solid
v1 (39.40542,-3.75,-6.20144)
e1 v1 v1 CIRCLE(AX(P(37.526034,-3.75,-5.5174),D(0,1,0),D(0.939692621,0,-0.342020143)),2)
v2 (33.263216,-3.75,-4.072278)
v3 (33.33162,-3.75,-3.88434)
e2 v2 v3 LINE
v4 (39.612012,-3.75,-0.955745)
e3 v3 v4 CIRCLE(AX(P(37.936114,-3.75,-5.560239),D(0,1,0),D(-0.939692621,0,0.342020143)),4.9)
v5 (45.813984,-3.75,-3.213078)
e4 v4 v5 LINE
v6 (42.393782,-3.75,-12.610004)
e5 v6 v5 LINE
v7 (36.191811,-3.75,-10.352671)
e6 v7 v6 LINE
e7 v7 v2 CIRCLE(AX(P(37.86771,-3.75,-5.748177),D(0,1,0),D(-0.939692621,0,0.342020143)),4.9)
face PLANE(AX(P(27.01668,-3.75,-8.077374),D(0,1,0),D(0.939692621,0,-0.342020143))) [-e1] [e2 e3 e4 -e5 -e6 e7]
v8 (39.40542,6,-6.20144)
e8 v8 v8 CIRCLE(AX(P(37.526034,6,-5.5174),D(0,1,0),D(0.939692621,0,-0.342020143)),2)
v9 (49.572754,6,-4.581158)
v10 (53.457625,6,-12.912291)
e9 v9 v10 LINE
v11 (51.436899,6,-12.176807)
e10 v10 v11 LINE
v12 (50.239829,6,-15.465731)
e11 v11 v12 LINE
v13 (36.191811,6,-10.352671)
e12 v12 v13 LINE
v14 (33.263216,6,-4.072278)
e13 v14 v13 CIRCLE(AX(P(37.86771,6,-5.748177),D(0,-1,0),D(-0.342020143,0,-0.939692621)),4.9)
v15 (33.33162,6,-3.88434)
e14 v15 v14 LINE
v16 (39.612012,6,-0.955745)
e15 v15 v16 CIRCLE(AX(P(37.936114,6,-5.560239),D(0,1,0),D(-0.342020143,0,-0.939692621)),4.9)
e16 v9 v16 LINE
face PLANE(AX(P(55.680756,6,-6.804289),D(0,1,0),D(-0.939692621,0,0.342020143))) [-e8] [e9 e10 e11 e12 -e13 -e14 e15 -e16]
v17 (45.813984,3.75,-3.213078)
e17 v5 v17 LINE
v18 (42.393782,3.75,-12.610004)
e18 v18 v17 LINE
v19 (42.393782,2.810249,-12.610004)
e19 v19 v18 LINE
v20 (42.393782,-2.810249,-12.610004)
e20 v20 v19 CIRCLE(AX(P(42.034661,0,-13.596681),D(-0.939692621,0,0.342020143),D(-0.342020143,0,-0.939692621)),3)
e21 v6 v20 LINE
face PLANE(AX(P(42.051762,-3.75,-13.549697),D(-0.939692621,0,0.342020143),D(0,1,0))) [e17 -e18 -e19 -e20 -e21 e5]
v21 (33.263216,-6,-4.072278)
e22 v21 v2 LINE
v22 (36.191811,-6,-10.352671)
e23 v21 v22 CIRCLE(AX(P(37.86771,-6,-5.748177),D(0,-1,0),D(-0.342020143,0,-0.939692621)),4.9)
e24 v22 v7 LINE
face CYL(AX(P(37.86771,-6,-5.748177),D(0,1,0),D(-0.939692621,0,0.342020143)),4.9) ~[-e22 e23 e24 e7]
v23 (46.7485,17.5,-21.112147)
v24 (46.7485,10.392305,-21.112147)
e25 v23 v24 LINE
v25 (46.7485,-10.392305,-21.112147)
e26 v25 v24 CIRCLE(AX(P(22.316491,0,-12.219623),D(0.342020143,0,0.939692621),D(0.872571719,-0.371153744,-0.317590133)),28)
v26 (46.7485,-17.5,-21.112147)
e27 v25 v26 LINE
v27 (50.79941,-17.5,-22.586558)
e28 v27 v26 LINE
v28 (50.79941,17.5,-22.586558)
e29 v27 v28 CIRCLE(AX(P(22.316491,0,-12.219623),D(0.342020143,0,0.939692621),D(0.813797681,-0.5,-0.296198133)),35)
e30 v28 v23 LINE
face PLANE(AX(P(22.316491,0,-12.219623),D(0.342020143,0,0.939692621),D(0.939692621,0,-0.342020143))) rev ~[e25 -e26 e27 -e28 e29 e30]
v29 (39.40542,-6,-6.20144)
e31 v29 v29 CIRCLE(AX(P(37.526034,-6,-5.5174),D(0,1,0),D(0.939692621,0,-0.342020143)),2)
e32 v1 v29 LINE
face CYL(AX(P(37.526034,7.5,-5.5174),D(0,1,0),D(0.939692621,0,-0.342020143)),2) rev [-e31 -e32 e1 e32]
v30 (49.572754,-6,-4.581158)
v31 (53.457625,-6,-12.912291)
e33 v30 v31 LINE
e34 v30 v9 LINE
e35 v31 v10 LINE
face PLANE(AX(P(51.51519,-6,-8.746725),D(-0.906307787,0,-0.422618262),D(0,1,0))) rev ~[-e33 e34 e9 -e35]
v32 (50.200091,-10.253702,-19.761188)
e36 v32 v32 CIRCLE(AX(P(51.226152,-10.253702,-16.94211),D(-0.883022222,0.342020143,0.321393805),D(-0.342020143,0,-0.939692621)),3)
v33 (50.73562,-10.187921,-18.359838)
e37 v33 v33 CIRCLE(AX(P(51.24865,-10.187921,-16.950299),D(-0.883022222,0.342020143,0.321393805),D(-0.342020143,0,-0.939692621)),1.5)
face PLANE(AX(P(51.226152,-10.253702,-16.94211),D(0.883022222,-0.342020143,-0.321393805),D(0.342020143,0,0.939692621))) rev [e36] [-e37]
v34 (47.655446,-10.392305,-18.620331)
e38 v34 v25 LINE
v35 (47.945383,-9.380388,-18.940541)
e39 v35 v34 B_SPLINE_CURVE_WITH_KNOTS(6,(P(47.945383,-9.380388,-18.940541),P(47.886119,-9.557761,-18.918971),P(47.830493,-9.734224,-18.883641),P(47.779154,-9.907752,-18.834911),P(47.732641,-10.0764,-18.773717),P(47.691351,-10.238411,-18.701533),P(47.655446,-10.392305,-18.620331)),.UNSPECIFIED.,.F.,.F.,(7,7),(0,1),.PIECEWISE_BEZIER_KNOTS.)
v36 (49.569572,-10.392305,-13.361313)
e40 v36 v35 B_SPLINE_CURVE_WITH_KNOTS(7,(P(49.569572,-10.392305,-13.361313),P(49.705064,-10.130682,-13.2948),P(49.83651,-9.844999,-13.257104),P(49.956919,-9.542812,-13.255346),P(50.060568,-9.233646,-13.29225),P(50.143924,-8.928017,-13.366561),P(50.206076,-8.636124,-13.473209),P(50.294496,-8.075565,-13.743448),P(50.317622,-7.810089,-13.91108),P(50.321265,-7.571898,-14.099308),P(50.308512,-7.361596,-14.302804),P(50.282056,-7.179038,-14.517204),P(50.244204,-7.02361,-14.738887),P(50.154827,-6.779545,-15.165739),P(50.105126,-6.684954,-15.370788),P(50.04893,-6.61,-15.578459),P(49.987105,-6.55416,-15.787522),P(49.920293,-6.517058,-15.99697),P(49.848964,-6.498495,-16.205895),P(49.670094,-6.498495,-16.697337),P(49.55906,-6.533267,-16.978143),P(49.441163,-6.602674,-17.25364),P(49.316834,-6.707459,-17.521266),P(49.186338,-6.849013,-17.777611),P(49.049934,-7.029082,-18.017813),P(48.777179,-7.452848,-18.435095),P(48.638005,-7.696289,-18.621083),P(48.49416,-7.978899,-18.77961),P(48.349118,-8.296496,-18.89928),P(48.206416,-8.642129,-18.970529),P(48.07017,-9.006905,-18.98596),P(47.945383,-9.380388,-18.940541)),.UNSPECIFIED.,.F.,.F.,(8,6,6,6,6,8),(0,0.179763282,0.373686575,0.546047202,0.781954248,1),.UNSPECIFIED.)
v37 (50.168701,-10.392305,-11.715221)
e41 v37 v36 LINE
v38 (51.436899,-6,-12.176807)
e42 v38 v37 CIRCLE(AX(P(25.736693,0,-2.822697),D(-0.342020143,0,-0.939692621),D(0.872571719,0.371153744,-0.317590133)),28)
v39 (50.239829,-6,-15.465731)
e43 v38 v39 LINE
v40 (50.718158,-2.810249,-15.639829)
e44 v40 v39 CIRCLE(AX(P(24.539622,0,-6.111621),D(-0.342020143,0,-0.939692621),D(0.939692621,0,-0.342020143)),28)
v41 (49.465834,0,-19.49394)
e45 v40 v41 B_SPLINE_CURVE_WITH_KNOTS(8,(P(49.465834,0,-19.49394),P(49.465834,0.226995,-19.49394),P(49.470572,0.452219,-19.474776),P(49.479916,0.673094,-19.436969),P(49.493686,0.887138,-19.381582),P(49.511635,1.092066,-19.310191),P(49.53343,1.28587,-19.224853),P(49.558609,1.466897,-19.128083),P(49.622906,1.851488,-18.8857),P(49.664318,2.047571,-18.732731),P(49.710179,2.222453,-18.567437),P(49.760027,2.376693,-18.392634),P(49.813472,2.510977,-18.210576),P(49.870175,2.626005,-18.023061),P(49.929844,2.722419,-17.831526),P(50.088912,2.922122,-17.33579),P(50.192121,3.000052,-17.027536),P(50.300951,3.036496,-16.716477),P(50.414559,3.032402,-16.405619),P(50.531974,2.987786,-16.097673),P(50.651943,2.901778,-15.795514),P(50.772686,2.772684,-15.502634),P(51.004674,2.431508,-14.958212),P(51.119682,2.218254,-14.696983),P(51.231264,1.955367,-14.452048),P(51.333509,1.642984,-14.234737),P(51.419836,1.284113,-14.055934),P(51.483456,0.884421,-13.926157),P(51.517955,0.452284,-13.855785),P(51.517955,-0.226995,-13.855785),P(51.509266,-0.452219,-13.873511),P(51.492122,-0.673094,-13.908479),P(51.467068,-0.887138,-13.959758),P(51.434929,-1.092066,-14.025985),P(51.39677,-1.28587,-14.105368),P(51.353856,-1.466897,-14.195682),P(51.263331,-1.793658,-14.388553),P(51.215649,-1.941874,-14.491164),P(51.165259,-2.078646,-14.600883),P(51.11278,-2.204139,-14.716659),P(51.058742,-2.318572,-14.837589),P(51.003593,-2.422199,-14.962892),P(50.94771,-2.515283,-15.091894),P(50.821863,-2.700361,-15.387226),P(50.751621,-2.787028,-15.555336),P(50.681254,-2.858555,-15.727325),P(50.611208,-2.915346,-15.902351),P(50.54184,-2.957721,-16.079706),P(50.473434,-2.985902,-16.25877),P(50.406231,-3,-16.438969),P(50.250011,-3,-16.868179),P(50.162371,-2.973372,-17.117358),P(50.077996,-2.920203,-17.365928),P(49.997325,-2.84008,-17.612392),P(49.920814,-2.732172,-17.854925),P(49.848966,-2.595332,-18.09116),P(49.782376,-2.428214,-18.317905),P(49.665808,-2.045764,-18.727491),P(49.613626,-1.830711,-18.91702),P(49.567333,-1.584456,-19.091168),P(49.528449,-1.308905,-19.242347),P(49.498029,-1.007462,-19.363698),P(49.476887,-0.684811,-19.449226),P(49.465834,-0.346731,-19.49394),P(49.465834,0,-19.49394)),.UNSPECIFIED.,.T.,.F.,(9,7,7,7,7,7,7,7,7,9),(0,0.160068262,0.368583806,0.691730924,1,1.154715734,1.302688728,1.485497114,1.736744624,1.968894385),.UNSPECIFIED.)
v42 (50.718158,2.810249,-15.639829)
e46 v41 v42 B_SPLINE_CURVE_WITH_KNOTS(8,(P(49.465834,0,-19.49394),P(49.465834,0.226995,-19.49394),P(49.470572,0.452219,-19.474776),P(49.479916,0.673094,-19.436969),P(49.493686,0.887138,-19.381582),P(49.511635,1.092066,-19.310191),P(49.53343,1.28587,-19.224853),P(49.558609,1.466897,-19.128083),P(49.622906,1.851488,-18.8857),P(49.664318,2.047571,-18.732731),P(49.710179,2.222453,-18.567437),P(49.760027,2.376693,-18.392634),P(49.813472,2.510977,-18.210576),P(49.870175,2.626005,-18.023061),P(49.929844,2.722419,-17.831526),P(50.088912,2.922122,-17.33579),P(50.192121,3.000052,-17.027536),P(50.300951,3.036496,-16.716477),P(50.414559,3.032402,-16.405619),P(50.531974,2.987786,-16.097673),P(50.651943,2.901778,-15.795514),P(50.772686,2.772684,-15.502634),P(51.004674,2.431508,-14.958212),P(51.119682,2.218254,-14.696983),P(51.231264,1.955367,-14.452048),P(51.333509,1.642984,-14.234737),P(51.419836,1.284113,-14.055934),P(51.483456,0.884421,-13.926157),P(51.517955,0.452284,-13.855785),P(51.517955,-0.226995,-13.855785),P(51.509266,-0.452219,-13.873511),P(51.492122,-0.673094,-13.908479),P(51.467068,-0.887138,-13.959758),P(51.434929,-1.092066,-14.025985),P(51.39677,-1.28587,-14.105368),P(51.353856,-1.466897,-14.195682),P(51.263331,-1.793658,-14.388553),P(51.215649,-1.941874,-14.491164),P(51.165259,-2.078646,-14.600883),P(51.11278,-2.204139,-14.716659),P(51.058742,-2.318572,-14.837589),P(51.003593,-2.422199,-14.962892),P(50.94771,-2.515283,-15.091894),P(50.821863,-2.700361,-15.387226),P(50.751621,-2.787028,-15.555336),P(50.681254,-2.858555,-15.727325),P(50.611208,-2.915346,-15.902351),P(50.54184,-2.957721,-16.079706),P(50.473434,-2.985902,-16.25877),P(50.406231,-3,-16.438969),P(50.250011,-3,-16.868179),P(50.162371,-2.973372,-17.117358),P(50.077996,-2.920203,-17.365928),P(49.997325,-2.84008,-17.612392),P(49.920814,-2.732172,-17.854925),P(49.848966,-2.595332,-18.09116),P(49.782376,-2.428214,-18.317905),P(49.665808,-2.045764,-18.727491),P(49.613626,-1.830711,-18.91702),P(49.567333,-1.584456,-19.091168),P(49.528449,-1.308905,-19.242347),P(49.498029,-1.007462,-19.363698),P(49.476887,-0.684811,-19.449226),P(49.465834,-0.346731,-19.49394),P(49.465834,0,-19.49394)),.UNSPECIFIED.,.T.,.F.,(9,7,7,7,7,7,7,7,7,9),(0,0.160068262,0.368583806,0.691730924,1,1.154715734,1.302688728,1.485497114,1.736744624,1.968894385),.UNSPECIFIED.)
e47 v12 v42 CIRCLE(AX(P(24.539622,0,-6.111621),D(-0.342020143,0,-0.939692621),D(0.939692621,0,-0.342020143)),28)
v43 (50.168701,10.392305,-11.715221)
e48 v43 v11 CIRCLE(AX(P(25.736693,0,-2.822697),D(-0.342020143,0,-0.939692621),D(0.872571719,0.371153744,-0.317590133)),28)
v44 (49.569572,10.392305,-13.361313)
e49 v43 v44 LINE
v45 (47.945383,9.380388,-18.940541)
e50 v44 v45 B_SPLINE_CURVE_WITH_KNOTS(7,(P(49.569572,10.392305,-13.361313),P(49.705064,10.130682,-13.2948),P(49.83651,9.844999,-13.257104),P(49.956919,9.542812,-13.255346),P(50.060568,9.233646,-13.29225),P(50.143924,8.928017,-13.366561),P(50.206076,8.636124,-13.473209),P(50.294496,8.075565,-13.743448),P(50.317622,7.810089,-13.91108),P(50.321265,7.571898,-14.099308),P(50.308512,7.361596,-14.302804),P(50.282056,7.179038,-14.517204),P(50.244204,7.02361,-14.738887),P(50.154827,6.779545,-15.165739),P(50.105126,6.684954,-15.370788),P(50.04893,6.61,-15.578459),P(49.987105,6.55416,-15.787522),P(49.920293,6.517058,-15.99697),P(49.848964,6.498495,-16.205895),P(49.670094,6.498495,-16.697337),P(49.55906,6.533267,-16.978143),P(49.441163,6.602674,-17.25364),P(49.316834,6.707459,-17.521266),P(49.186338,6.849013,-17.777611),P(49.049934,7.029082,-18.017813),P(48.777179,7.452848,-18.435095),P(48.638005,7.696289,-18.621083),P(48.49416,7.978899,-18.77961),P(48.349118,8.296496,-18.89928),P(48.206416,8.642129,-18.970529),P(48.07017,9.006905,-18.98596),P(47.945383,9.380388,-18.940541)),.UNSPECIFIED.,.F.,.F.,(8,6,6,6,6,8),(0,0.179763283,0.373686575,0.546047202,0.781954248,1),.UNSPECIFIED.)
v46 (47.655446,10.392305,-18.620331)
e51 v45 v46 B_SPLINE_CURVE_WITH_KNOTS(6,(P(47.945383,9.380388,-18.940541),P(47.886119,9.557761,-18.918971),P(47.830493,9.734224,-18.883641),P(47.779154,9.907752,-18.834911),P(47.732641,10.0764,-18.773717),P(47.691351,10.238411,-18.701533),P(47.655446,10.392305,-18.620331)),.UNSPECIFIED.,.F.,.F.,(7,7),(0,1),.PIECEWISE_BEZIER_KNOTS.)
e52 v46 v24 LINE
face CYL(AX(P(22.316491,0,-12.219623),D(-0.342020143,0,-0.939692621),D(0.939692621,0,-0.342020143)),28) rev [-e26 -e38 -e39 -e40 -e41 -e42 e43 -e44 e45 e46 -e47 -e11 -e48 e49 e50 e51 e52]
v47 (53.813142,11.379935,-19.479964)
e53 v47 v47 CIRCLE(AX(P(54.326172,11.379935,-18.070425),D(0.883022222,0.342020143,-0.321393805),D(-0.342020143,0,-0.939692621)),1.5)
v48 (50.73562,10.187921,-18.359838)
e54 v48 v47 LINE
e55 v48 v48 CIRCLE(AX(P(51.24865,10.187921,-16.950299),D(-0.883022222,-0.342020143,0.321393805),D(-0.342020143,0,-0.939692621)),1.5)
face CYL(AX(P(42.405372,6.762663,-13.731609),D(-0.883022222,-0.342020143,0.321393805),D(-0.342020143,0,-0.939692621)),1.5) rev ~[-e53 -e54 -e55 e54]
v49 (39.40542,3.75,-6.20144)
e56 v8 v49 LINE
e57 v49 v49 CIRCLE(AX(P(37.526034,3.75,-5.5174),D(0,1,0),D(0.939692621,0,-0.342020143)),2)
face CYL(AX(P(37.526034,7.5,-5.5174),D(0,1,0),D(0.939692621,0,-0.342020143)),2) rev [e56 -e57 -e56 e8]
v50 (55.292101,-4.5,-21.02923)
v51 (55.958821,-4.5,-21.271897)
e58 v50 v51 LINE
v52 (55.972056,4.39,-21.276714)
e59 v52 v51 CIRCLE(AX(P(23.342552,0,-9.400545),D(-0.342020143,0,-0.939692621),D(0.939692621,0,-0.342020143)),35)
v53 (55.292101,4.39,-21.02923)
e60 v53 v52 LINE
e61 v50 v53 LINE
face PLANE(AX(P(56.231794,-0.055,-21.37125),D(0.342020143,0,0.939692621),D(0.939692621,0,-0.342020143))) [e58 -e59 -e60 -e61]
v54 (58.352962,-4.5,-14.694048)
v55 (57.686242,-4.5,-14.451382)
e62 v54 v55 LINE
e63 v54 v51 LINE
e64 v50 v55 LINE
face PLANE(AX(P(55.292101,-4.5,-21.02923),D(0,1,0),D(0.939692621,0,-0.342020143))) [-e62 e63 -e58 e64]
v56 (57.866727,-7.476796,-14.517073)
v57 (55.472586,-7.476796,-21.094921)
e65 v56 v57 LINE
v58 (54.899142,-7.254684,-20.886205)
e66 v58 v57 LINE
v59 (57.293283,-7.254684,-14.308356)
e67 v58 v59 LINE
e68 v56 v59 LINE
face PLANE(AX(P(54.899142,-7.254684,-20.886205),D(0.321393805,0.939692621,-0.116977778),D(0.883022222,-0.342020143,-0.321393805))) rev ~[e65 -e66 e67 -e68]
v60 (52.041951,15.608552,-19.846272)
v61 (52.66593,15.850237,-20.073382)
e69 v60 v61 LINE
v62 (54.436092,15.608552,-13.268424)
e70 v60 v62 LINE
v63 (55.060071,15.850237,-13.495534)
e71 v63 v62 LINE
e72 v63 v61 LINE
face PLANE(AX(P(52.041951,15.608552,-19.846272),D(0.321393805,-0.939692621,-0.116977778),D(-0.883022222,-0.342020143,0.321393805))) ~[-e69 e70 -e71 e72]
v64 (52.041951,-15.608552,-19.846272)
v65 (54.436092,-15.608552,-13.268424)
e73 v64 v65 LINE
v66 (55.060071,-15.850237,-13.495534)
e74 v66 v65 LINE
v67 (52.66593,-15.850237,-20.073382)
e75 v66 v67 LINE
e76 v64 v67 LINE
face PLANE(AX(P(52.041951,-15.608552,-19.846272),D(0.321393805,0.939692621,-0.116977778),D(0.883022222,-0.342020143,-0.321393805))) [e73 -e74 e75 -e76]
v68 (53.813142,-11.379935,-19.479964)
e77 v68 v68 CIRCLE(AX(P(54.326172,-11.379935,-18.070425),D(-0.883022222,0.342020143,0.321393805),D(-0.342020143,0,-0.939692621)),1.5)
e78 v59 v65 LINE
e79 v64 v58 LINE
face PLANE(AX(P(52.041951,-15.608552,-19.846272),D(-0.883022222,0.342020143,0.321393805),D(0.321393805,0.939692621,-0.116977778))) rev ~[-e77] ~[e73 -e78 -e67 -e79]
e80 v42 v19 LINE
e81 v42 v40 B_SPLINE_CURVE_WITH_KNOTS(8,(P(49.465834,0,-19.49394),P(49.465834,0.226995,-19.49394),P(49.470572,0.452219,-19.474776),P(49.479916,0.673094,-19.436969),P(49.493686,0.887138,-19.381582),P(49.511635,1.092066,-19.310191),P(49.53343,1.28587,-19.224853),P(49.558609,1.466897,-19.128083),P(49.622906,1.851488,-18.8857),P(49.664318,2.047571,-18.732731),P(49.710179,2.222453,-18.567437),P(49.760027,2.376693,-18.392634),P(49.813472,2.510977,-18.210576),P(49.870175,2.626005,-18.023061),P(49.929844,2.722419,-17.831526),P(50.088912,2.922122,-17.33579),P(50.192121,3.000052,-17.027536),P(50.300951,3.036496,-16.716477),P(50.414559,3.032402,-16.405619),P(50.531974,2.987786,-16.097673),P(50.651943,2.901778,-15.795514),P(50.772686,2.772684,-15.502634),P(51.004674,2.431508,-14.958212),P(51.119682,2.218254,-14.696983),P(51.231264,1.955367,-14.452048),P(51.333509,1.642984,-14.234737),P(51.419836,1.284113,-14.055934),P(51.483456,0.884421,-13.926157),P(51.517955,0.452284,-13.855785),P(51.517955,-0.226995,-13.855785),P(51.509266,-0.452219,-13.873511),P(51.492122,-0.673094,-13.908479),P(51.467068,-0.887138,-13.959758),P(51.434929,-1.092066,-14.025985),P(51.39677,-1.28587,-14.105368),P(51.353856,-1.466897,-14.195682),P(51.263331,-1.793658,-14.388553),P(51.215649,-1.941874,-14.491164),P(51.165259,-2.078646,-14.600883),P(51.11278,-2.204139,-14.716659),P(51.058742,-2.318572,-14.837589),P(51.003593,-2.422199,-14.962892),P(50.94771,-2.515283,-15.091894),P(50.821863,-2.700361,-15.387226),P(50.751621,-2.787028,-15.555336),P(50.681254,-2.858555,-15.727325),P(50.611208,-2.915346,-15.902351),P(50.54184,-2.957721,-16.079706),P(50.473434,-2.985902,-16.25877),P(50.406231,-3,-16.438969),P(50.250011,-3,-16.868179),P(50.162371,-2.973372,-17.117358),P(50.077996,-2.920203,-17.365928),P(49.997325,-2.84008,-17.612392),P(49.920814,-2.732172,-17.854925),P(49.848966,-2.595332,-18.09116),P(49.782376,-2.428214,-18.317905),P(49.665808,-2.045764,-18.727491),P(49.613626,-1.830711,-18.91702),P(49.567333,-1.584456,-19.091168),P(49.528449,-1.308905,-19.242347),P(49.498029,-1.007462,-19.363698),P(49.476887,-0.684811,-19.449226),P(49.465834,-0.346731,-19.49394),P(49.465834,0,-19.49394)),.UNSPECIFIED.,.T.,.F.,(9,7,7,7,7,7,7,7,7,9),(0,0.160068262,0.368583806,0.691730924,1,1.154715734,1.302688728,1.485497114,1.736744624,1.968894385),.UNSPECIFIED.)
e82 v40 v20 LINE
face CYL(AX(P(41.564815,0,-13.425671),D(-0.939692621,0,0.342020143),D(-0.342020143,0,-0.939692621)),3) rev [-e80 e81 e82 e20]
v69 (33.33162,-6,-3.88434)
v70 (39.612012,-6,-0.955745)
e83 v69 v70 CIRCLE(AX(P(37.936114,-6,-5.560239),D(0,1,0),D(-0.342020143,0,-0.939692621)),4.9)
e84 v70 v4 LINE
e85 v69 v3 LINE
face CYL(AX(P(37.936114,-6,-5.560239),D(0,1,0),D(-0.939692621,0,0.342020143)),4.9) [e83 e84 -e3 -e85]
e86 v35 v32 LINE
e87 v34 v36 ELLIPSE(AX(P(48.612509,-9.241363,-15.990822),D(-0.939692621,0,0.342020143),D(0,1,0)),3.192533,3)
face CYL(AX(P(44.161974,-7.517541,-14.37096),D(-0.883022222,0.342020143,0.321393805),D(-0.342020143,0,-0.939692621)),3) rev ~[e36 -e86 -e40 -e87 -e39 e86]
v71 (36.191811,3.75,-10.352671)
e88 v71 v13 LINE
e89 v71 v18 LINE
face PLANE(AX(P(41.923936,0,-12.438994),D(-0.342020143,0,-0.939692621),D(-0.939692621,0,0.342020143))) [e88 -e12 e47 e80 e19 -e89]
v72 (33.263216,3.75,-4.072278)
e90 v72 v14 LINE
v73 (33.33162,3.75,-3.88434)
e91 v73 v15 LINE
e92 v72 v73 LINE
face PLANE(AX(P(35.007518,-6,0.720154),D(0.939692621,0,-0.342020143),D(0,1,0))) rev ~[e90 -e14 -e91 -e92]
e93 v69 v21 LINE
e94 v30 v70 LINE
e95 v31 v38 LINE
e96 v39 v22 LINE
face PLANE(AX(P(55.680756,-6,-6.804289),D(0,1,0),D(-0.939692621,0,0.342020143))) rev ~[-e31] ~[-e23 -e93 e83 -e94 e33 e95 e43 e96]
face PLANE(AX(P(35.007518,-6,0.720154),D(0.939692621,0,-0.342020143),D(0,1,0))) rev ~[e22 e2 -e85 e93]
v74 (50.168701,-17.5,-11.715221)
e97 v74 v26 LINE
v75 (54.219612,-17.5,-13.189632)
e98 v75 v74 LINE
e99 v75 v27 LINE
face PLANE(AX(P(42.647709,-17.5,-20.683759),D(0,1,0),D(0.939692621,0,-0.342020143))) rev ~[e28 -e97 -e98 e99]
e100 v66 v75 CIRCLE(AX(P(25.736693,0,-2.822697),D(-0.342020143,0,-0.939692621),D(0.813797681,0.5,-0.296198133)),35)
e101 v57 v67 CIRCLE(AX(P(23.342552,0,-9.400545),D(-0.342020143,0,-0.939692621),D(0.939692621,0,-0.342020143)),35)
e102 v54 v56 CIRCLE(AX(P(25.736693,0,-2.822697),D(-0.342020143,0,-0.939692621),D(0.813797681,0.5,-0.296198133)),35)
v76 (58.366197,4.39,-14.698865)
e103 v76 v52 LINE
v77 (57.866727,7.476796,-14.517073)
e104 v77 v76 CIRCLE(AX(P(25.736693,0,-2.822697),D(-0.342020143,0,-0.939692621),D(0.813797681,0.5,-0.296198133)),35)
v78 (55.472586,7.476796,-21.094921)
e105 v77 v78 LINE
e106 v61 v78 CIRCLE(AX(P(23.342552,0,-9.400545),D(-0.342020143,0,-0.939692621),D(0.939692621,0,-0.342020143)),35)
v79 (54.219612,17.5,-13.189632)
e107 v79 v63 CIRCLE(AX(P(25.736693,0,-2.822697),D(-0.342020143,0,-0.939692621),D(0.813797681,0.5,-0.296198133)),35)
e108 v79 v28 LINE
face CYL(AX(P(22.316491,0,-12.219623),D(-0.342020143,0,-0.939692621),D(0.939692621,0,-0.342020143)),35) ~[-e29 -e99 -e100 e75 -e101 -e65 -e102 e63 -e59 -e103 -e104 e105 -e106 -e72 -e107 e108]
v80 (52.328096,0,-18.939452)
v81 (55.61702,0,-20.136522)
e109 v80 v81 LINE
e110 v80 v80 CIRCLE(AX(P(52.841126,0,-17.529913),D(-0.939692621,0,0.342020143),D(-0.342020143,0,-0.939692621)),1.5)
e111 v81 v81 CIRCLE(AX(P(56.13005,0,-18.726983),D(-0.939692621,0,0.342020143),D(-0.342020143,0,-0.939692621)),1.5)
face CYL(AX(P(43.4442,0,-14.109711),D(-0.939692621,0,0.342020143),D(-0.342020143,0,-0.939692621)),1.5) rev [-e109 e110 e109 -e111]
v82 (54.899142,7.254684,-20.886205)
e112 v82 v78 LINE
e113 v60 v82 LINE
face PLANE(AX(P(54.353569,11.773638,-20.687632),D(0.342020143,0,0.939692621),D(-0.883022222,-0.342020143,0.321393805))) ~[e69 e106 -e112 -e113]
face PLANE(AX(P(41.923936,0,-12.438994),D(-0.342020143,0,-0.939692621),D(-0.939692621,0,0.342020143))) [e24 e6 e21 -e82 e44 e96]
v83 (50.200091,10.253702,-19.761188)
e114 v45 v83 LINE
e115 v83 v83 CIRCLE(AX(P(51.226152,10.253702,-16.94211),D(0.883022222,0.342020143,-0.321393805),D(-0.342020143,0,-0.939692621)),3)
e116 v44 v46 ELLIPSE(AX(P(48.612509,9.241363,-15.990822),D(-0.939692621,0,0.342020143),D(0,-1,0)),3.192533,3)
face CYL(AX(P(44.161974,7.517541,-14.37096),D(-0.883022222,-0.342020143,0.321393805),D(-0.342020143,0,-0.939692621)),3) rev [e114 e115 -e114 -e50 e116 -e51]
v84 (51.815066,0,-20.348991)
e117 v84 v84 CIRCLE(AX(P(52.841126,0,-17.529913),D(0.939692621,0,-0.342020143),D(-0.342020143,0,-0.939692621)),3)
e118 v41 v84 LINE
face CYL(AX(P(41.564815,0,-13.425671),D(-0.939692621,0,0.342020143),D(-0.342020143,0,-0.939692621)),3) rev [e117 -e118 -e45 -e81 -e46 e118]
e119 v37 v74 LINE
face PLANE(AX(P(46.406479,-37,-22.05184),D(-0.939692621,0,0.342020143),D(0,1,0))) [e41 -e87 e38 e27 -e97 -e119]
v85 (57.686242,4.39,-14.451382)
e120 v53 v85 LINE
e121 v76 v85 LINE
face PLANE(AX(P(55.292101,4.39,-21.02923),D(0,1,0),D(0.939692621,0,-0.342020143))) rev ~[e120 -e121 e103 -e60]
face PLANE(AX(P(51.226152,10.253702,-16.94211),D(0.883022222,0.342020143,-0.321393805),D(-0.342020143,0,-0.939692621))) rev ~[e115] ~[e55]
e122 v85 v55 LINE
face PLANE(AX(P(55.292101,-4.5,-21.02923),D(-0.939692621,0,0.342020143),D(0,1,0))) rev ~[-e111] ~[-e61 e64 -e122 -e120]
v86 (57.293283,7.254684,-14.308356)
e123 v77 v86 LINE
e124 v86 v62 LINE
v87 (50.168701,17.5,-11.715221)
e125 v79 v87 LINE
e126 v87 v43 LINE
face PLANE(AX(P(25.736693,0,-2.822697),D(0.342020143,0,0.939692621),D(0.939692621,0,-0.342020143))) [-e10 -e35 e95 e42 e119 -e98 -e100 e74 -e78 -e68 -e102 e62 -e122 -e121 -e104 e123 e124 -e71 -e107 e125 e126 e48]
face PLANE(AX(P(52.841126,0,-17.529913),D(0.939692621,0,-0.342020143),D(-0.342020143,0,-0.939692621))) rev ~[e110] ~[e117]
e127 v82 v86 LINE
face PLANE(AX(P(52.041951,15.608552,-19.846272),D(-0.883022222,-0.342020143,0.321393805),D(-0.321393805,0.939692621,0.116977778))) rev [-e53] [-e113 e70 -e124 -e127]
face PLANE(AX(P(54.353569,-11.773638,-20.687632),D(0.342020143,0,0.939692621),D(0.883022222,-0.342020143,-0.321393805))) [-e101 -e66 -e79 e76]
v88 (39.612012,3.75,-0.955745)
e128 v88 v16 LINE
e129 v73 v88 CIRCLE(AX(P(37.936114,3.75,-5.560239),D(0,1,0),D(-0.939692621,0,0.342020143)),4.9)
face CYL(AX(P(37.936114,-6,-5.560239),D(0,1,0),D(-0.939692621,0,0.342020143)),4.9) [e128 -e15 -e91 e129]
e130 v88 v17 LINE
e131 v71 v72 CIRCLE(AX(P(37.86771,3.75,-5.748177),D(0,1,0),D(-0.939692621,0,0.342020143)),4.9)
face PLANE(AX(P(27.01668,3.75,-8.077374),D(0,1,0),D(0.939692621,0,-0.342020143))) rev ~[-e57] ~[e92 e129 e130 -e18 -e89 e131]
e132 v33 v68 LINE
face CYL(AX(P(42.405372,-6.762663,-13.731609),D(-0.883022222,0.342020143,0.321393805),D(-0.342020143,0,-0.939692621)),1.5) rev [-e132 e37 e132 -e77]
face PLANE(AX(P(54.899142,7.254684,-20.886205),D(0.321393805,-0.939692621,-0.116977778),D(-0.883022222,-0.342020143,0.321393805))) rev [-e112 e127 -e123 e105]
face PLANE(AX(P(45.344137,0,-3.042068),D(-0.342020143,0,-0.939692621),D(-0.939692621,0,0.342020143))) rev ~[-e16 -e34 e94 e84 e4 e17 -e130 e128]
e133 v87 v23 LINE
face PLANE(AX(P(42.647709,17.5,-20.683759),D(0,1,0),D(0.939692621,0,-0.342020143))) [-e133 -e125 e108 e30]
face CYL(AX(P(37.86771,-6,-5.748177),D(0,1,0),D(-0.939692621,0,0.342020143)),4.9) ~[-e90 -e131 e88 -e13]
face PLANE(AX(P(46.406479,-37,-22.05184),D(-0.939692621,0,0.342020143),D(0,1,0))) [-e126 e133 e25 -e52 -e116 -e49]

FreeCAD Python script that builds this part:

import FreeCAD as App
import Part
import Sketcher
from FreeCAD import Vector
Q = App.Units.Quantity


def edges_at(feature, points):
    """Names of the edges that pass closest to the given points."""
    edges = feature.Shape.Edges
    near = lambda p: min(range(len(edges)), key=lambda i: edges[i].distToShape(Part.Vertex(*p))[0])
    return sorted({f"Edge{near(p) + 1}" for p in points})

doc = App.newDocument("Part")
body = doc.addObject("PartDesign::Body", "Body")

sketch1 = body.newObject("Sketcher::SketchObject", "Sketch")
sketch1.AttachmentSupport = (doc.getObject("YZ_Plane"), [""])
sketch1.MapMode = "FlatFace"
sketch1.AttachmentOffset = App.Placement(Vector(0, 0, 44), App.Rotation())
sketch1.addGeometry(Part.Circle(Vector(0, -11.6, 0), Vector(0, 0, 1), 3), False)
sketch1.addConstraint([
    Sketcher.Constraint("PointOnObject", 0, 3, -2),
    Sketcher.Constraint("Diameter", 0, Q("6 mm")),
    Sketcher.Constraint("DistanceY", 0, 3, -1, 1, Q("11.55 mm")),
])
pad1 = body.newObject("PartDesign::Pad", "Pad")
pad1.Profile = sketch1
pad1.Length = 12
body2 = doc.addObject("PartDesign::Body", "Body001")

sketch2 = body2.newObject("Sketcher::SketchObject", "Sketch001")
sketch2.AttachmentSupport = (doc.getObject("XY_Plane001"), [""])
sketch2.MapMode = "FlatFace"
sketch2.AttachmentOffset = App.Placement(Vector(0, 0, -11.5), App.Rotation())
sketch2.addGeometry([
    Part.LineSegment(Vector(28, 4, 0), Vector(28, -4, 0)),
    Part.LineSegment(Vector(28, -4, 0), Vector(44, -4, 0)),
    Part.LineSegment(Vector(44, -4, 0), Vector(44, 4, 0)),
    Part.LineSegment(Vector(44, 4, 0), Vector(28, 4, 0)),
], False)
sketch2.addConstraint([
    Sketcher.Constraint("Coincident", 0, 2, 1, 1),
    Sketcher.Constraint("Coincident", 1, 2, 2, 1),
    Sketcher.Constraint("Coincident", 2, 2, 3, 1),
    Sketcher.Constraint("Coincident", 3, 2, 0, 1),
    Sketcher.Constraint("Vertical", 0),
    Sketcher.Constraint("Horizontal", 1),
    Sketcher.Constraint("Vertical", 2),
    Sketcher.Constraint("Horizontal", 3),
    Sketcher.Constraint("DistanceX", 1, 1, 1, 2, Q("16 mm")),
    Sketcher.Constraint("DistanceY", 0, 2, 0, 1, Q("7.5 mm")),
    Sketcher.Constraint("DistanceX", -1, 1, 0, 2, Q("28.5 mm")),
    Sketcher.Constraint("DistanceY", 0, 2, -1, 1, Q("3.75 mm")),
])
pad2 = body2.newObject("PartDesign::Pad", "Pad001")
pad2.Profile = sketch2
pad2.Length = 12
body3 = doc.addObject("PartDesign::Body", "Body002")

sketch3 = body3.newObject("Sketcher::SketchObject", "Sketch002")
sketch3.AttachmentSupport = (doc.getObject("XZ_Plane002"), [""])
sketch3.MapMode = "FlatFace"
sketch3.AttachmentOffset = App.Placement(Vector(0, 0, -7.5), App.Rotation())
sketch3.addGeometry(Part.Circle(Vector(37.5, -5.5, 0), Vector(0, 0, 1), 2), False)
sketch3.addConstraint([
    Sketcher.Constraint("Diameter", 0, Q("4 mm")),
    Sketcher.Constraint("DistanceX", -1, 1, 0, 3, Q("37.5 mm")),
    Sketcher.Constraint("DistanceY", 0, 3, -1, 1, Q("5.5 mm")),
])
pad3 = body3.newObject("PartDesign::Pad", "Pad002")
pad3.Profile = sketch3
pad3.Length = 15
doc.recompute()

boolean = body3.newObject("PartDesign::Boolean", "Boolean")
boolean.Type = "Fuse"
boolean.addObjects([body2])
body4 = doc.addObject("PartDesign::Body", "Body003")

sketch4 = body4.newObject("Sketcher::SketchObject", "Sketch003")
sketch4.AttachmentSupport = (doc.getObject("XY_Plane003"), [""])
sketch4.MapMode = "FlatFace"
sketch4.AttachmentOffset = App.Placement(Vector(0, 0, -10.5), App.Rotation())
sketch4.addGeometry([
    Part.LineSegment(Vector(27, 8, 0), Vector(27, -4, 0)),
    Part.LineSegment(Vector(27, -4, 0), Vector(49, -4, 0)),
    Part.LineSegment(Vector(49, -4, 0), Vector(49, 8, 0)),
    Part.LineSegment(Vector(49, 8, 0), Vector(27, 8, 0)),
], False)
sketch4.addConstraint([
    Sketcher.Constraint("Coincident", 0, 2, 1, 1),
    Sketcher.Constraint("Coincident", 1, 2, 2, 1),
    Sketcher.Constraint("Coincident", 2, 2, 3, 1),
    Sketcher.Constraint("Coincident", 3, 2, 0, 1),
    Sketcher.Constraint("Vertical", 0),
    Sketcher.Constraint("Horizontal", 1),
    Sketcher.Constraint("Vertical", 2),
    Sketcher.Constraint("Horizontal", 3),
    Sketcher.Constraint("DistanceX", 1, 1, 1, 2, Q("22 mm")),
    Sketcher.Constraint("DistanceY", 0, 2, 0, 1, Q("12 mm")),
    Sketcher.Constraint("DistanceX", -1, 1, 0, 2, Q("27 mm")),
    Sketcher.Constraint("DistanceY", 0, 2, -1, 1, Q("3.5 mm")),
])
pad4 = body4.newObject("PartDesign::Pad", "Pad003")
pad4.Profile = sketch4
pad4.Length = 10
doc.recompute()

fillet = body4.newObject("PartDesign::Fillet", "Fillet")
fillet.Base = (pad4, edges_at(pad4, [(49, 2.5, -0.5), (49, 2.5, -10.5)]))
fillet.Radius = 4.9
body5 = doc.addObject("PartDesign::Body", "Body004")
doc.recompute()

body4.Placement = App.Placement(Vector(82, -2.5, -11), App.Rotation(Vector(0, 1, 0), 180))
boolean2 = body5.newObject("PartDesign::Boolean", "Boolean001")
boolean2.Type = "Fuse"
boolean2.addObjects([body4])
doc.recompute()

boolean3 = body5.newObject("PartDesign::Boolean", "Boolean002")
boolean3.Type = "Cut"
boolean3.addObjects([body3])
doc.recompute()

chamfer = body5.newObject("PartDesign::Chamfer", "Chamfer")
chamfer.Base = (boolean3, edges_at(boolean3, [(55, 0, -0.5)]))
chamfer.Size = 6.5
doc.recompute()

boolean4 = body5.newObject("PartDesign::Boolean", "Boolean003")
boolean4.Type = "Cut"
boolean4.addObjects([body])
body6 = doc.addObject("PartDesign::Body", "Body005")

sketch5 = body6.newObject("Sketcher::SketchObject", "Sketch004")
sketch5.AttachmentSupport = (doc.getObject("YZ_Plane005"), [""])
sketch5.MapMode = "FlatFace"
sketch5.AttachmentOffset = App.Placement(Vector(0, 0, 48), App.Rotation())
sketch5.addGeometry(Part.Circle(Vector(0, -11.6, 0), Vector(0, 0, 1), 1.5), False)
sketch5.addConstraint([
    Sketcher.Constraint("PointOnObject", 0, 3, -2),
    Sketcher.Constraint("Diameter", 0, Q("3 mm")),
    Sketcher.Constraint("DistanceY", 0, 3, -1, 1, Q("11.55 mm")),
])
pad5 = body6.newObject("PartDesign::Pad", "Pad004")
pad5.Profile = sketch5
pad5.Length = 18
body7 = doc.addObject("PartDesign::Body", "Body006")

sketch6 = body7.newObject("Sketcher::SketchObject", "Sketch005")
sketch6.AttachmentSupport = (doc.getObject("XY_Plane006"), [""])
sketch6.MapMode = "FlatFace"
sketch6.AttachmentOffset = App.Placement(Vector(0, 0, -14), App.Rotation())
sketch6.addGeometry([
    Part.LineSegment(Vector(61.5, 4.4, 0), Vector(61.5, -4.5, 0)),
    Part.LineSegment(Vector(61.5, -4.5, 0), Vector(63.5, -4.5, 0)),
    Part.LineSegment(Vector(63.5, -4.5, 0), Vector(63.5, 4.4, 0)),
    Part.LineSegment(Vector(63.5, 4.4, 0), Vector(61.5, 4.4, 0)),
], False)
sketch6.addConstraint([
    Sketcher.Constraint("Coincident", 0, 2, 1, 1),
    Sketcher.Constraint("Coincident", 1, 2, 2, 1),
    Sketcher.Constraint("Coincident", 2, 2, 3, 1),
    Sketcher.Constraint("Coincident", 3, 2, 0, 1),
    Sketcher.Constraint("Vertical", 0),
    Sketcher.Constraint("Horizontal", 1),
    Sketcher.Constraint("Vertical", 2),
    Sketcher.Constraint("Horizontal", 3),
    Sketcher.Constraint("DistanceX", 1, 1, 1, 2, Q("2 mm")),
    Sketcher.Constraint("DistanceY", 0, 2, 0, 1, Q("8.89 mm")),
    Sketcher.Constraint("DistanceX", -1, 1, 0, 2, Q("61.5 mm")),
    Sketcher.Constraint("DistanceY", 0, 2, -1, 1, Q("4.5 mm")),
])
pad6 = body7.newObject("PartDesign::Pad", "Pad005")
pad6.Profile = sketch6
pad6.Length = 21.59
doc.recompute()

boolean5 = body7.newObject("PartDesign::Boolean", "Boolean004")
boolean5.Type = "Fuse"
boolean5.addObjects([body6])
body8 = doc.addObject("PartDesign::Body", "Body007")
doc.recompute()

body7.Placement = App.Placement(Vector(-0.210743, 9.654304, 0), App.Rotation(Vector(0, 0, -1), 20))
boolean6 = body8.newObject("PartDesign::Boolean", "Boolean005")
boolean6.Type = "Fuse"
boolean6.addObjects([body7])
body9 = doc.addObject("PartDesign::Body", "Body008")

sketch7 = body9.newObject("Sketcher::SketchObject", "Sketch006")
sketch7.AttachmentSupport = (doc.getObject("YZ_Plane008"), [""])
sketch7.MapMode = "FlatFace"
sketch7.AttachmentOffset = App.Placement(Vector(0, 0, 48), App.Rotation())
sketch7.addGeometry(Part.Circle(Vector(0, -11.6, 0), Vector(0, 0, 1), 1.5), False)
sketch7.addConstraint([
    Sketcher.Constraint("PointOnObject", 0, 3, -2),
    Sketcher.Constraint("Diameter", 0, Q("3 mm")),
    Sketcher.Constraint("DistanceY", 0, 3, -1, 1, Q("11.55 mm")),
])
pad7 = body9.newObject("PartDesign::Pad", "Pad006")
pad7.Profile = sketch7
pad7.Length = 18
body10 = doc.addObject("PartDesign::Body", "Body009")

sketch8 = body10.newObject("Sketcher::SketchObject", "Sketch007")
sketch8.AttachmentSupport = (doc.getObject("XY_Plane009"), [""])
sketch8.MapMode = "FlatFace"
sketch8.AttachmentOffset = App.Placement(Vector(0, 0, -14), App.Rotation())
sketch8.addGeometry([
    Part.LineSegment(Vector(61.5, 4.4, 0), Vector(61.5, -4.5, 0)),
    Part.LineSegment(Vector(61.5, -4.5, 0), Vector(63.5, -4.5, 0)),
    Part.LineSegment(Vector(63.5, -4.5, 0), Vector(63.5, 4.4, 0)),
    Part.LineSegment(Vector(63.5, 4.4, 0), Vector(61.5, 4.4, 0)),
], False)
sketch8.addConstraint([
    Sketcher.Constraint("Coincident", 0, 2, 1, 1),
    Sketcher.Constraint("Coincident", 1, 2, 2, 1),
    Sketcher.Constraint("Coincident", 2, 2, 3, 1),
    Sketcher.Constraint("Coincident", 3, 2, 0, 1),
    Sketcher.Constraint("Vertical", 0),
    Sketcher.Constraint("Horizontal", 1),
    Sketcher.Constraint("Vertical", 2),
    Sketcher.Constraint("Horizontal", 3),
    Sketcher.Constraint("DistanceX", 1, 1, 1, 2, Q("2 mm")),
    Sketcher.Constraint("DistanceY", 0, 2, 0, 1, Q("8.89 mm")),
    Sketcher.Constraint("DistanceX", -1, 1, 0, 2, Q("61.5 mm")),
    Sketcher.Constraint("DistanceY", 0, 2, -1, 1, Q("4.5 mm")),
])
pad8 = body10.newObject("PartDesign::Pad", "Pad007")
pad8.Profile = sketch8
pad8.Length = 21.59
doc.recompute()

boolean7 = body10.newObject("PartDesign::Boolean", "Boolean006")
boolean7.Type = "Fuse"
boolean7.addObjects([body9])
body11 = doc.addObject("PartDesign::Body", "Body010")
doc.recompute()

body10.Placement = App.Placement(Vector(-0.210743, 9.654304, 0), App.Rotation(Vector(0, 0, -1), 20))
boolean8 = body11.newObject("PartDesign::Boolean", "Boolean007")
boolean8.Type = "Fuse"
boolean8.addObjects([body10])
body12 = doc.addObject("PartDesign::Body", "Body011")
doc.recompute()

mirroring = doc.addObject("Part::Mirroring", "Mirroring")
mirroring.Source = body11
mirroring.Base = Vector(0, 0, 0)
mirroring.Normal = Vector(0, 1, 0)
body12.BaseFeature = mirroring
doc.recompute()
body13 = doc.addObject("PartDesign::Body", "Body012")

sketch9 = body13.newObject("Sketcher::SketchObject", "Sketch008")
sketch9.AttachmentSupport = (doc.getObject("YZ_Plane012"), [""])
sketch9.MapMode = "FlatFace"
sketch9.AttachmentOffset = App.Placement(Vector(0, 0, 48), App.Rotation())
sketch9.addGeometry(Part.Circle(Vector(0, -11.6, 0), Vector(0, 0, 1), 1.5), False)
sketch9.addConstraint([
    Sketcher.Constraint("PointOnObject", 0, 3, -2),
    Sketcher.Constraint("Diameter", 0, Q("3 mm")),
    Sketcher.Constraint("DistanceY", 0, 3, -1, 1, Q("11.55 mm")),
])
pad9 = body13.newObject("PartDesign::Pad", "Pad008")
pad9.Profile = sketch9
pad9.Length = 18
body14 = doc.addObject("PartDesign::Body", "Body013")

sketch10 = body14.newObject("Sketcher::SketchObject", "Sketch009")
sketch10.AttachmentSupport = (doc.getObject("XY_Plane013"), [""])
sketch10.MapMode = "FlatFace"
sketch10.AttachmentOffset = App.Placement(Vector(0, 0, -14), App.Rotation())
sketch10.addGeometry([
    Part.LineSegment(Vector(61.5, 4.4, 0), Vector(61.5, -4.5, 0)),
    Part.LineSegment(Vector(61.5, -4.5, 0), Vector(63.5, -4.5, 0)),
    Part.LineSegment(Vector(63.5, -4.5, 0), Vector(63.5, 4.4, 0)),
    Part.LineSegment(Vector(63.5, 4.4, 0), Vector(61.5, 4.4, 0)),
], False)
sketch10.addConstraint([
    Sketcher.Constraint("Coincident", 0, 2, 1, 1),
    Sketcher.Constraint("Coincident", 1, 2, 2, 1),
    Sketcher.Constraint("Coincident", 2, 2, 3, 1),
    Sketcher.Constraint("Coincident", 3, 2, 0, 1),
    Sketcher.Constraint("Vertical", 0),
    Sketcher.Constraint("Horizontal", 1),
    Sketcher.Constraint("Vertical", 2),
    Sketcher.Constraint("Horizontal", 3),
    Sketcher.Constraint("DistanceX", 1, 1, 1, 2, Q("2 mm")),
    Sketcher.Constraint("DistanceY", 0, 2, 0, 1, Q("8.89 mm")),
    Sketcher.Constraint("DistanceX", -1, 1, 0, 2, Q("61.5 mm")),
    Sketcher.Constraint("DistanceY", 0, 2, -1, 1, Q("4.5 mm")),
])
pad10 = body14.newObject("PartDesign::Pad", "Pad009")
pad10.Profile = sketch10
pad10.Length = 21.59
doc.recompute()

boolean9 = body14.newObject("PartDesign::Boolean", "Boolean008")
boolean9.Type = "Fuse"
boolean9.addObjects([body13])
body15 = doc.addObject("PartDesign::Body", "Body014")
body15.AllowCompound = True
doc.recompute()

body14.Placement = App.Placement(Vector(-2, 0, 0), App.Rotation(Vector(0, 0, 1), 0))
boolean10 = body15.newObject("PartDesign::Boolean", "Boolean009")
boolean10.Type = "Fuse"
boolean10.addObjects([body14])
doc.recompute()

boolean11 = body15.newObject("PartDesign::Boolean", "Boolean010")
boolean11.Type = "Fuse"
boolean11.addObjects([body8])
doc.recompute()

boolean12 = body15.newObject("PartDesign::Boolean", "Boolean011")
boolean12.Type = "Fuse"
boolean12.addObjects([body12])
body16 = doc.addObject("PartDesign::Body", "Body015")

sketch11 = body16.newObject("Sketcher::SketchObject", "Sketch010")
sketch11.AttachmentSupport = (doc.getObject("YZ_Plane015"), [""])
sketch11.MapMode = "FlatFace"
sketch11.AttachmentOffset = App.Placement(Vector(0, 0, 44), App.Rotation())
sketch11.addGeometry(Part.Circle(Vector(0, -11.6, 0), Vector(0, 0, 1), 3), False)
sketch11.addConstraint([
    Sketcher.Constraint("PointOnObject", 0, 3, -2),
    Sketcher.Constraint("Diameter", 0, Q("6 mm")),
    Sketcher.Constraint("DistanceY", 0, 3, -1, 1, Q("11.55 mm")),
])
pad11 = body16.newObject("PartDesign::Pad", "Pad010")
pad11.Profile = sketch11
pad11.Length = 12
body17 = doc.addObject("PartDesign::Body", "Body016")

sketch12 = body17.newObject("Sketcher::SketchObject", "Sketch011")
sketch12.AttachmentSupport = (doc.getObject("XY_Plane016"), [""])
sketch12.MapMode = "FlatFace"
sketch12.addGeometry(Part.Circle(Vector(0, 0, 0), Vector(0, 0, 1), 3), False)
sketch12.addConstraint([
    Sketcher.Constraint("Coincident", 0, 3, -1, 1),
    Sketcher.Constraint("Diameter", 0, Q("6 mm")),
])
pad12 = body17.newObject("PartDesign::Pad", "Pad011")
pad12.Profile = sketch12
pad12.Length = 8
body18 = doc.addObject("PartDesign::Body", "Body017")
doc.recompute()

body17.Placement = App.Placement(Vector(0, 0, 0), App.Rotation(Vector(0, 1, 0), 90))
boolean13 = body18.newObject("PartDesign::Boolean", "Boolean012")
boolean13.Type = "Fuse"
boolean13.addObjects([body17])
body19 = doc.addObject("PartDesign::Body", "Body018")
doc.recompute()

body18.Placement = App.Placement(Vector(46.763839, 7.517541, -11.55), App.Rotation(Vector(0, 0, 1), 20))
boolean14 = body19.newObject("PartDesign::Boolean", "Boolean013")
boolean14.Type = "Fuse"
boolean14.addObjects([body18])
body20 = doc.addObject("PartDesign::Body", "Body019")

sketch13 = body20.newObject("Sketcher::SketchObject", "Sketch012")
sketch13.AttachmentSupport = (doc.getObject("XY_Plane019"), [""])
sketch13.MapMode = "FlatFace"
sketch13.addGeometry(Part.Circle(Vector(0, 0, 0), Vector(0, 0, 1), 3), False)
sketch13.addConstraint([
    Sketcher.Constraint("Coincident", 0, 3, -1, 1),
    Sketcher.Constraint("Diameter", 0, Q("6 mm")),
])
pad13 = body20.newObject("PartDesign::Pad", "Pad012")
pad13.Profile = sketch13
pad13.Length = 8
body21 = doc.addObject("PartDesign::Body", "Body020")
doc.recompute()

body20.Placement = App.Placement(Vector(0, 0, 0), App.Rotation(Vector(0, 1, 0), 90))
boolean15 = body21.newObject("PartDesign::Boolean", "Boolean014")
boolean15.Type = "Fuse"
boolean15.addObjects([body20])
body22 = doc.addObject("PartDesign::Body", "Body021")
doc.recompute()

body21.Placement = App.Placement(Vector(46.763839, 7.517541, -11.55), App.Rotation(Vector(0, 0, 1), 20))
boolean16 = body22.newObject("PartDesign::Boolean", "Boolean015")
boolean16.Type = "Fuse"
boolean16.addObjects([body21])
body23 = doc.addObject("PartDesign::Body", "Body022")
body23.AllowCompound = True
doc.recompute()

mirroring2 = doc.addObject("Part::Mirroring", "Mirroring001")
mirroring2.Source = body22
mirroring2.Base = Vector(0, 0, 0)
mirroring2.Normal = Vector(0, 1, 0)
body23.BaseFeature = mirroring2
doc.recompute()

boolean17 = body23.newObject("PartDesign::Boolean", "Boolean016")
boolean17.Type = "Fuse"
boolean17.addObjects([body16])
doc.recompute()

boolean18 = body23.newObject("PartDesign::Boolean", "Boolean017")
boolean18.Type = "Fuse"
boolean18.addObjects([body19])
body24 = doc.addObject("PartDesign::Body", "Body023")

sketch14 = body24.newObject("Sketcher::SketchObject", "Sketch013")
sketch14.AttachmentSupport = (doc.getObject("XY_Plane023"), [""])
sketch14.MapMode = "FlatFace"
sketch14.AttachmentOffset = App.Placement(Vector(0, 0, -18), App.Rotation())
sketch14.addGeometry([
    Part.LineSegment(Vector(48, -18, 0), Vector(48, -28, 0)),
    Part.LineSegment(Vector(48, -28, 0), Vector(58, -28, 0)),
    Part.LineSegment(Vector(58, -28, 0), Vector(58, -18, 0)),
    Part.LineSegment(Vector(58, -18, 0), Vector(48, -18, 0)),
], False)
sketch14.addConstraint([
    Sketcher.Constraint("Coincident", 0, 2, 1, 1),
    Sketcher.Constraint("Coincident", 1, 2, 2, 1),
    Sketcher.Constraint("Coincident", 2, 2, 3, 1),
    Sketcher.Constraint("Coincident", 3, 2, 0, 1),
    Sketcher.Constraint("Vertical", 0),
    Sketcher.Constraint("Horizontal", 1),
    Sketcher.Constraint("Vertical", 2),
    Sketcher.Constraint("Horizontal", 3),
    Sketcher.Constraint("Equal", 3, 0),
    Sketcher.Constraint("DistanceX", 1, 1, 1, 2, Q("10 mm")),
    Sketcher.Constraint("DistanceX", -1, 1, 0, 2, Q("47.5 mm")),
    Sketcher.Constraint("DistanceY", 0, 2, -1, 1, Q("27.5 mm")),
])
pad14 = body24.newObject("PartDesign::Pad", "Pad013")
pad14.Profile = sketch14
pad14.Length = 12
body25 = doc.addObject("PartDesign::Body", "Body024")

sketch15 = body25.newObject("Sketcher::SketchObject", "Sketch014")
sketch15.AttachmentSupport = (doc.getObject("XY_Plane024"), [""])
sketch15.MapMode = "FlatFace"
sketch15.AttachmentOffset = App.Placement(Vector(0, 0, -18), App.Rotation())
sketch15.addGeometry([
    Part.LineSegment(Vector(48, 28, 0), Vector(48, 18, 0)),
    Part.LineSegment(Vector(48, 18, 0), Vector(58, 18, 0)),
    Part.LineSegment(Vector(58, 18, 0), Vector(58, 28, 0)),
    Part.LineSegment(Vector(58, 28, 0), Vector(48, 28, 0)),
], False)
sketch15.addConstraint([
    Sketcher.Constraint("Coincident", 0, 2, 1, 1),
    Sketcher.Constraint("Coincident", 1, 2, 2, 1),
    Sketcher.Constraint("Coincident", 2, 2, 3, 1),
    Sketcher.Constraint("Coincident", 3, 2, 0, 1),
    Sketcher.Constraint("Vertical", 0),
    Sketcher.Constraint("Horizontal", 1),
    Sketcher.Constraint("Vertical", 2),
    Sketcher.Constraint("Horizontal", 3),
    Sketcher.Constraint("Equal", 3, 0),
    Sketcher.Constraint("DistanceX", 1, 1, 1, 2, Q("10 mm")),
    Sketcher.Constraint("DistanceX", -1, 1, 0, 2, Q("47.5 mm")),
    Sketcher.Constraint("DistanceY", -1, 1, 0, 2, Q("17.5 mm")),
])
pad15 = body25.newObject("PartDesign::Pad", "Pad014")
pad15.Profile = sketch15
pad15.Length = 12
body26 = doc.addObject("PartDesign::Body", "Body025")

sketch16 = body26.newObject("Sketcher::SketchObject", "Sketch015")
sketch16.AttachmentSupport = (doc.getObject("XY_Plane025"), [""])
sketch16.MapMode = "FlatFace"
sketch16.AttachmentOffset = App.Placement(Vector(0, 0, -18), App.Rotation())
sketch16.addGeometry([
    Part.LineSegment(Vector(-10, 36, 0), Vector(-10, -37, 0)),
    Part.LineSegment(Vector(-10, -37, 0), Vector(52, -37, 0)),
    Part.LineSegment(Vector(52, -37, 0), Vector(52, 36, 0)),
    Part.LineSegment(Vector(52, 36, 0), Vector(-10, 36, 0)),
], False)
sketch16.addConstraint([
    Sketcher.Constraint("Coincident", 0, 2, 1, 1),
    Sketcher.Constraint("Coincident", 1, 2, 2, 1),
    Sketcher.Constraint("Coincident", 2, 2, 3, 1),
    Sketcher.Constraint("Coincident", 3, 2, 0, 1),
    Sketcher.Constraint("Vertical", 0),
    Sketcher.Constraint("Horizontal", 1),
    Sketcher.Constraint("Vertical", 2),
    Sketcher.Constraint("Horizontal", 3),
    Sketcher.Constraint("DistanceX", 1, 1, 1, 2, Q("62 mm")),
    Sketcher.Constraint("DistanceY", 0, 2, 0, 1, Q("73 mm")),
    Sketcher.Constraint("DistanceY", 0, 2, -1, 1, Q("37 mm")),
    Sketcher.Constraint("DistanceX", 0, 2, -1, 1, Q("10.5 mm")),
])
pad16 = body26.newObject("PartDesign::Pad", "Pad015")
pad16.Profile = sketch16
pad16.Length = 12
doc.recompute()

boolean19 = body26.newObject("PartDesign::Boolean", "Boolean018")
boolean19.Type = "Fuse"
boolean19.addObjects([body24])
doc.recompute()

boolean20 = body26.newObject("PartDesign::Boolean", "Boolean019")
boolean20.Type = "Fuse"
boolean20.addObjects([body25])
body27 = doc.addObject("PartDesign::Body", "Body026")

sketch17 = body27.newObject("Sketcher::SketchObject", "Sketch016")
sketch17.AttachmentSupport = (doc.getObject("XY_Plane026"), [""])
sketch17.MapMode = "FlatFace"
sketch17.AttachmentOffset = App.Placement(Vector(0, 0, -17), App.Rotation())
sketch17.addGeometry([
    Part.Circle(Vector(26, 0, 0), Vector(0, 0, 1), 35),
    Part.Circle(Vector(26, 0, 0), Vector(0, 0, 1), 28),
], False)
sketch17.addConstraint([
    Sketcher.Constraint("Coincident", 1, 3, 0, 3),
    Sketcher.Constraint("PointOnObject", 0, 3, -1),
    Sketcher.Constraint("Diameter", 0, Q("70 mm")),
    Sketcher.Constraint("Diameter", 1, Q("56 mm")),
    Sketcher.Constraint("DistanceX", -1, 1, 0, 3, Q("25.5 mm")),
])
pad17 = body27.newObject("PartDesign::Pad", "Pad016")
pad17.Profile = sketch17
pad17.Length = 10
doc.recompute()

boolean21 = body27.newObject("PartDesign::Boolean", "Boolean020")
boolean21.Type = "Cut"
boolean21.addObjects([body26])
doc.recompute()

boolean22 = body27.newObject("PartDesign::Boolean", "Boolean021")
boolean22.Type = "Cut"
boolean22.addObjects([body23])
doc.recompute()

boolean23 = body27.newObject("PartDesign::Boolean", "Boolean022")
boolean23.Type = "Cut"
boolean23.addObjects([body15])
doc.recompute()

boolean24 = body27.newObject("PartDesign::Boolean", "Boolean023")
boolean24.Type = "Fuse"
boolean24.addObjects([body5])
body28 = doc.addObject("PartDesign::Body", "Body027")
doc.recompute()

body27.Placement = App.Placement(Vector(4.168672, 0, 12.476665), App.Rotation(Vector(0, 1, 0), 20))
boolean25 = body28.newObject("PartDesign::Boolean", "Boolean024")
boolean25.Type = "Fuse"
boolean25.addObjects([body27])
mirroring.Visibility = False
mirroring2.Visibility = False

doc.recompute()
